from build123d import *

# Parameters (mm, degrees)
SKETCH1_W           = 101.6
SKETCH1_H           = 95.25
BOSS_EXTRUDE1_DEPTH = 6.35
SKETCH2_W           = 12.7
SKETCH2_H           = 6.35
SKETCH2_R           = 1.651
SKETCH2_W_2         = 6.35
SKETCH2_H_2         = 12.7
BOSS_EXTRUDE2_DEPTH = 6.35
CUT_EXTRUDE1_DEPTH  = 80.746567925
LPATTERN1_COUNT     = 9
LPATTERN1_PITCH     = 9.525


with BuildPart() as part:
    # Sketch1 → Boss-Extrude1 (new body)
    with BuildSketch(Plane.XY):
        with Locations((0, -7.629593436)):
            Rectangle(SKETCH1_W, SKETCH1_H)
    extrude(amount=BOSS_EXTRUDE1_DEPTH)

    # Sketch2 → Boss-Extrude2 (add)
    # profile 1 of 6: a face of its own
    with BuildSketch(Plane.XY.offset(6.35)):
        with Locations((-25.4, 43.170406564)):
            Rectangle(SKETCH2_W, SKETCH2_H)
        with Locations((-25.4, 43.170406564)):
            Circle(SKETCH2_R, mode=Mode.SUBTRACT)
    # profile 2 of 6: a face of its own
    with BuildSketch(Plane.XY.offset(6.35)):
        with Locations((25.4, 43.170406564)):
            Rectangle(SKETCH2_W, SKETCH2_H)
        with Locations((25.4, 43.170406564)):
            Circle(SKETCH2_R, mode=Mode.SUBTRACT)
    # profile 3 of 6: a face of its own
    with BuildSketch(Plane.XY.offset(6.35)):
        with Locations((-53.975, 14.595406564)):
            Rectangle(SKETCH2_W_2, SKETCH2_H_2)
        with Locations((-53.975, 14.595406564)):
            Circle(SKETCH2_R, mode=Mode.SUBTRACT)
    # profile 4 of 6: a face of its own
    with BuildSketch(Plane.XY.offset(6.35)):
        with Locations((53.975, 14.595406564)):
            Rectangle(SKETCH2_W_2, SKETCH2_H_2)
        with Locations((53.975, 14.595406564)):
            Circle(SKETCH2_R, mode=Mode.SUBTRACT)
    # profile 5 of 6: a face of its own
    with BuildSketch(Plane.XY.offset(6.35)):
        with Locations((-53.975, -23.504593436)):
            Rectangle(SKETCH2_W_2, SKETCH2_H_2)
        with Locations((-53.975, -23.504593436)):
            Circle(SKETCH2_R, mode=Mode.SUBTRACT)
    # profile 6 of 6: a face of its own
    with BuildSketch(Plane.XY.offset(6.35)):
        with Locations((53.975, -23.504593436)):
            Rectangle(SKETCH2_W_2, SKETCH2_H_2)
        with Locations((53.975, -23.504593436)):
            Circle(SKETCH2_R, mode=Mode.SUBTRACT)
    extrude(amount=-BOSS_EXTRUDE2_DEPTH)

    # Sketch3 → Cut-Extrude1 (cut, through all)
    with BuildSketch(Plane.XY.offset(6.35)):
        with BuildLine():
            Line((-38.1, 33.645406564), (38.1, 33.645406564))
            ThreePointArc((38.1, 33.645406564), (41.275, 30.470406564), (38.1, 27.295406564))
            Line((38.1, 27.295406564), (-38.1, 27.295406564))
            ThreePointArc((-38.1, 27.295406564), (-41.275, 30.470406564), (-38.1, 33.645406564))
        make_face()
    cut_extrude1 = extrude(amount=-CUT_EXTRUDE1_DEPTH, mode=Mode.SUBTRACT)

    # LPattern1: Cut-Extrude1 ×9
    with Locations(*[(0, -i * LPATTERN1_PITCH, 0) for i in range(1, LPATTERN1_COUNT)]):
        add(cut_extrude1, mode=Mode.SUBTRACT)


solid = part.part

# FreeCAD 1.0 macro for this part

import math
import FreeCAD as App
import Part
import Sketcher
from FreeCAD import Vector
Q = App.Units.Quantity


def add_polygon(sketch, points):
    """Adds a closed chain of lines whose ends are joined by coincident constraints."""
    first, n = sketch.GeometryCount, len(points)
    for a, b in zip(points, points[1:] + points[:1]):
        sketch.addGeometry(Part.LineSegment(App.Vector(*a, 0), App.Vector(*b, 0)), False)
    for i in range(n):
        sketch.addConstraint(Sketcher.Constraint("Coincident", first + i, 2, first + (i + 1) % n, 1))

doc = App.newDocument("Part")
body = doc.addObject("PartDesign::Body", "Body")

sketch1 = body.newObject("Sketcher::SketchObject", "Sketch")
sketch1.AttachmentSupport = (doc.getObject("XY_Plane"), [""])
sketch1.MapMode = "FlatFace"
add_polygon(sketch1, [(-51, 40), (-51, -55), (51, -55), (51, 40)])
sketch1.addConstraint(Sketcher.Constraint("Vertical", 0))
sketch1.addConstraint(Sketcher.Constraint("Horizontal", 1))
sketch1.addConstraint(Sketcher.Constraint("Vertical", 2))
sketch1.addConstraint(Sketcher.Constraint("Horizontal", 3))
sketch1.addConstraint(Sketcher.Constraint("DistanceX", 1, 1, 1, 2, Q("4 in")))
sketch1.addConstraint(Sketcher.Constraint("DistanceX", 0, 2, -1, 1, Q("2 in")))
sketch1.addConstraint(Sketcher.Constraint("DistanceY", 0, 2, 0, 1, Q("3.75 in")))
sketch1.addConstraint(Sketcher.Constraint("DistanceY", 0, 2, -1, 1, Q("55.254593 mm")))
pad1 = body.newObject("PartDesign::Pad", "Pad")
pad1.Profile = sketch1
pad1.Length = Q("0.25 in")

sketch2 = body.newObject("Sketcher::SketchObject", "Sketch001")
sketch2.AttachmentSupport = (doc.getObject("XY_Plane"), [""])
sketch2.MapMode = "FlatFace"
sketch2.AttachmentOffset = App.Placement(Vector(0, 0, 0.25 * 25.4), App.Rotation())
add_polygon(sketch2, [(-31.8, 46.3), (-31.8, 40), (-19.1, 40), (-19.1, 46.3)])
sketch2.addGeometry(Part.Circle(Vector(-25.4, 43.2, 0), Vector(0, 0, 1), 1.7), False)
add_polygon(sketch2, [(19.1, 46.3), (19.1, 40), (31.8, 40), (31.8, 46.3)])
sketch2.addGeometry(Part.Circle(Vector(25.4, 43.2, 0), Vector(0, 0, 1), 1.7), False)
add_polygon(sketch2, [(-57.1, 20.9), (-57.1, 8.2), (-50.8, 8.2), (-50.8, 20.9)])
sketch2.addGeometry(Part.Circle(Vector(-54, 14.6, 0), Vector(0, 0, 1), 1.7), False)
add_polygon(sketch2, [(50.8, 20.9), (50.8, 8.2), (57.1, 8.2), (57.1, 20.9)])
sketch2.addGeometry(Part.Circle(Vector(54, 14.6, 0), Vector(0, 0, 1), 1.7), False)
add_polygon(sketch2, [(-57.1, -17.2), (-57.1, -29.9), (-50.8, -29.9), (-50.8, -17.2)])
sketch2.addGeometry(Part.Circle(Vector(-54, -23.5, 0), Vector(0, 0, 1), 1.7), False)
add_polygon(sketch2, [(50.8, -17.2), (50.8, -29.9), (57.1, -29.9), (57.1, -17.2)])
sketch2.addGeometry(Part.Circle(Vector(54, -23.5, 0), Vector(0, 0, 1), 1.7), False)
sketch2.addConstraint(Sketcher.Constraint("Vertical", 0))
sketch2.addConstraint(Sketcher.Constraint("Horizontal", 1))
sketch2.addConstraint(Sketcher.Constraint("Vertical", 2))
sketch2.addConstraint(Sketcher.Constraint("Horizontal", 3))
sketch2.addConstraint(Sketcher.Constraint("Vertical", 5))
sketch2.addConstraint(Sketcher.Constraint("Horizontal", 6))
sketch2.addConstraint(Sketcher.Constraint("Vertical", 7))
sketch2.addConstraint(Sketcher.Constraint("Horizontal", 8))
sketch2.addConstraint(Sketcher.Constraint("Vertical", 10))
sketch2.addConstraint(Sketcher.Constraint("Horizontal", 11))
sketch2.addConstraint(Sketcher.Constraint("Vertical", 12))
sketch2.addConstraint(Sketcher.Constraint("Horizontal", 13))
sketch2.addConstraint(Sketcher.Constraint("Vertical", 15))
sketch2.addConstraint(Sketcher.Constraint("Horizontal", 16))
sketch2.addConstraint(Sketcher.Constraint("Vertical", 17))
sketch2.addConstraint(Sketcher.Constraint("Horizontal", 18))
sketch2.addConstraint(Sketcher.Constraint("Vertical", 20))
sketch2.addConstraint(Sketcher.Constraint("Horizontal", 21))
sketch2.addConstraint(Sketcher.Constraint("Vertical", 22))
sketch2.addConstraint(Sketcher.Constraint("Horizontal", 23))
sketch2.addConstraint(Sketcher.Constraint("Vertical", 25))
sketch2.addConstraint(Sketcher.Constraint("Horizontal", 26))
sketch2.addConstraint(Sketcher.Constraint("Vertical", 27))
sketch2.addConstraint(Sketcher.Constraint("Horizontal", 28))
sketch2.addConstraint(Sketcher.Constraint("Equal", 4, 9))
sketch2.addConstraint(Sketcher.Constraint("Equal", 9, 14))
sketch2.addConstraint(Sketcher.Constraint("Equal", 14, 19))
sketch2.addConstraint(Sketcher.Constraint("Equal", 19, 24))
sketch2.addConstraint(Sketcher.Constraint("Equal", 24, 29))
sketch2.addConstraint(Sketcher.Constraint("Symmetric", 4, 3, 9, 3, -2))
sketch2.addConstraint(Sketcher.Constraint("Symmetric", 14, 3, 19, 3, -2))
sketch2.addConstraint(Sketcher.Constraint("Symmetric", 24, 3, 29, 3, -2))
sketch2.addConstraint(Sketcher.Constraint("Symmetric", 1, 2, 5, 2, -2))
sketch2.addConstraint(Sketcher.Constraint("Symmetric", 3, 2, 7, 2, -2))
sketch2.addConstraint(Sketcher.Constraint("Symmetric", 11, 2, 15, 2, -2))
sketch2.addConstraint(Sketcher.Constraint("Symmetric", 13, 2, 17, 2, -2))
sketch2.addConstraint(Sketcher.Constraint("Symmetric", 21, 2, 25, 2, -2))
sketch2.addConstraint(Sketcher.Constraint("Symmetric", 23, 2, 27, 2, -2))
sketch2.addConstraint(Sketcher.Constraint("Vertical", 14, 3, 24, 3))
sketch2.addConstraint(Sketcher.Constraint("Vertical", 13, 2, 20, 2))
sketch2.addConstraint(Sketcher.Constraint("Vertical", 12, 2, 21, 2))
sketch2.addConstraint(Sketcher.Constraint("Equal", 28, 0))
sketch2.addConstraint(Sketcher.Constraint("Equal", 8, 10))
sketch2.addConstraint(Sketcher.Constraint("Equal", 17, 20))
sketch2.addConstraint(Sketcher.Constraint("Diameter", 4, Q("0.13 in")))
sketch2.addConstraint(Sketcher.Constraint("DistanceX", 1, 1, 1, 2, Q("0.5 in")))
sketch2.addConstraint(Sketcher.Constraint("DistanceX", 4, 3, -1, 1, Q("1 in")))
sketch2.addConstraint(Sketcher.Constraint("DistanceX", 11, 2, -1, 1, Q("2 in")))
sketch2.addConstraint(Sketcher.Constraint("DistanceY", 14, 3, 0, 2, Q("1 in")))
sketch2.addConstraint(Sketcher.Constraint("DistanceX", 1, 2, 6, 2, Q("2 in")))
sketch2.addConstraint(Sketcher.Constraint("DistanceX", 10, 2, 0, 2, Q("1 in")))
sketch2.addConstraint(Sketcher.Constraint("DistanceY", 12, 2, 3, 2, Q("1 in")))
sketch2.addConstraint(Sketcher.Constraint("DistanceY", 20, 2, 13, 2, Q("2 in")))
sketch2.addConstraint(Sketcher.Constraint("DistanceY", 24, 3, 14, 3, Q("1.5 in")))
sketch2.addConstraint(Sketcher.Constraint("DistanceX", 14, 3, 19, 3, Q("4.25 in")))
sketch2.addConstraint(Sketcher.Constraint("DistanceY", 14, 3, 4, 3, Q("1.125 in")))
sketch2.addConstraint(Sketcher.Constraint("DistanceY", -1, 1, 4, 3, Q("43.170407 mm")))
pad2 = body.newObject("PartDesign::Pad", "Pad001")
pad2.Profile = sketch2
pad2.Length = Q("0.25 in")
pad2.Reversed = True

sketch3 = body.newObject("Sketcher::SketchObject", "Sketch002")
sketch3.AttachmentSupport = (doc.getObject("XY_Plane"), [""])
sketch3.MapMode = "FlatFace"
sketch3.AttachmentOffset = App.Placement(Vector(0, 0, 0.25 * 25.4), App.Rotation())
sketch3.addGeometry(Part.LineSegment(Vector(38.1, 33.6, 0), Vector(-38.1, 33.6, 0)), False)
sketch3.addGeometry(Part.ArcOfCircle(Part.Circle(Vector(-38.1, 30.5, 0), Vector(0, 0, 1), 3.2), math.radians(90), math.radians(270)), False)
sketch3.addGeometry(Part.LineSegment(Vector(-38.1, 27.3, 0), Vector(38.1, 27.3, 0)), False)
sketch3.addGeometry(Part.ArcOfCircle(Part.Circle(Vector(38.1, 30.5, 0), Vector(0, 0, 1), 3.2), math.radians(-90), math.radians(90)), False)
sketch3.addConstraint(Sketcher.Constraint("Tangent", 0, 2, 1, 1))
sketch3.addConstraint(Sketcher.Constraint("Tangent", 1, 2, 2, 1))
sketch3.addConstraint(Sketcher.Constraint("Tangent", 2, 2, 3, 1))
sketch3.addConstraint(Sketcher.Constraint("Tangent", 3, 2, 0, 1))
sketch3.addConstraint(Sketcher.Constraint("Horizontal", 0))
sketch3.addConstraint(Sketcher.Constraint("Horizontal", 2))
sketch3.addConstraint(Sketcher.Constraint("DistanceX", 0, 2, 0, 1, Q("3 in")))
sketch3.addConstraint(Sketcher.Constraint("Radius", 1, Q("0.125 in")))
sketch3.addConstraint(Sketcher.Constraint("DistanceX", 1, 3, -1, 1, Q("1.5 in")))
sketch3.addConstraint(Sketcher.Constraint("DistanceY", -1, 1, 1, 3, Q("30.470407 mm")))
pocket1 = body.newObject("PartDesign::Pocket", "Pocket")
pocket1.Profile = sketch3
pocket1.Type = "ThroughAll"
doc.recompute()

linearpattern = body.newObject("PartDesign::LinearPattern", "LinearPattern")
linearpattern.Originals = [pocket1]
linearpattern.Direction = (doc.getObject("Y_Axis"), [""])
linearpattern.Mode = "offset"
linearpattern.Offset = Q("0.375 in")
linearpattern.Occurrences = 9
linearpattern.Reversed = True
body.Tip = linearpattern

doc.recompute()
